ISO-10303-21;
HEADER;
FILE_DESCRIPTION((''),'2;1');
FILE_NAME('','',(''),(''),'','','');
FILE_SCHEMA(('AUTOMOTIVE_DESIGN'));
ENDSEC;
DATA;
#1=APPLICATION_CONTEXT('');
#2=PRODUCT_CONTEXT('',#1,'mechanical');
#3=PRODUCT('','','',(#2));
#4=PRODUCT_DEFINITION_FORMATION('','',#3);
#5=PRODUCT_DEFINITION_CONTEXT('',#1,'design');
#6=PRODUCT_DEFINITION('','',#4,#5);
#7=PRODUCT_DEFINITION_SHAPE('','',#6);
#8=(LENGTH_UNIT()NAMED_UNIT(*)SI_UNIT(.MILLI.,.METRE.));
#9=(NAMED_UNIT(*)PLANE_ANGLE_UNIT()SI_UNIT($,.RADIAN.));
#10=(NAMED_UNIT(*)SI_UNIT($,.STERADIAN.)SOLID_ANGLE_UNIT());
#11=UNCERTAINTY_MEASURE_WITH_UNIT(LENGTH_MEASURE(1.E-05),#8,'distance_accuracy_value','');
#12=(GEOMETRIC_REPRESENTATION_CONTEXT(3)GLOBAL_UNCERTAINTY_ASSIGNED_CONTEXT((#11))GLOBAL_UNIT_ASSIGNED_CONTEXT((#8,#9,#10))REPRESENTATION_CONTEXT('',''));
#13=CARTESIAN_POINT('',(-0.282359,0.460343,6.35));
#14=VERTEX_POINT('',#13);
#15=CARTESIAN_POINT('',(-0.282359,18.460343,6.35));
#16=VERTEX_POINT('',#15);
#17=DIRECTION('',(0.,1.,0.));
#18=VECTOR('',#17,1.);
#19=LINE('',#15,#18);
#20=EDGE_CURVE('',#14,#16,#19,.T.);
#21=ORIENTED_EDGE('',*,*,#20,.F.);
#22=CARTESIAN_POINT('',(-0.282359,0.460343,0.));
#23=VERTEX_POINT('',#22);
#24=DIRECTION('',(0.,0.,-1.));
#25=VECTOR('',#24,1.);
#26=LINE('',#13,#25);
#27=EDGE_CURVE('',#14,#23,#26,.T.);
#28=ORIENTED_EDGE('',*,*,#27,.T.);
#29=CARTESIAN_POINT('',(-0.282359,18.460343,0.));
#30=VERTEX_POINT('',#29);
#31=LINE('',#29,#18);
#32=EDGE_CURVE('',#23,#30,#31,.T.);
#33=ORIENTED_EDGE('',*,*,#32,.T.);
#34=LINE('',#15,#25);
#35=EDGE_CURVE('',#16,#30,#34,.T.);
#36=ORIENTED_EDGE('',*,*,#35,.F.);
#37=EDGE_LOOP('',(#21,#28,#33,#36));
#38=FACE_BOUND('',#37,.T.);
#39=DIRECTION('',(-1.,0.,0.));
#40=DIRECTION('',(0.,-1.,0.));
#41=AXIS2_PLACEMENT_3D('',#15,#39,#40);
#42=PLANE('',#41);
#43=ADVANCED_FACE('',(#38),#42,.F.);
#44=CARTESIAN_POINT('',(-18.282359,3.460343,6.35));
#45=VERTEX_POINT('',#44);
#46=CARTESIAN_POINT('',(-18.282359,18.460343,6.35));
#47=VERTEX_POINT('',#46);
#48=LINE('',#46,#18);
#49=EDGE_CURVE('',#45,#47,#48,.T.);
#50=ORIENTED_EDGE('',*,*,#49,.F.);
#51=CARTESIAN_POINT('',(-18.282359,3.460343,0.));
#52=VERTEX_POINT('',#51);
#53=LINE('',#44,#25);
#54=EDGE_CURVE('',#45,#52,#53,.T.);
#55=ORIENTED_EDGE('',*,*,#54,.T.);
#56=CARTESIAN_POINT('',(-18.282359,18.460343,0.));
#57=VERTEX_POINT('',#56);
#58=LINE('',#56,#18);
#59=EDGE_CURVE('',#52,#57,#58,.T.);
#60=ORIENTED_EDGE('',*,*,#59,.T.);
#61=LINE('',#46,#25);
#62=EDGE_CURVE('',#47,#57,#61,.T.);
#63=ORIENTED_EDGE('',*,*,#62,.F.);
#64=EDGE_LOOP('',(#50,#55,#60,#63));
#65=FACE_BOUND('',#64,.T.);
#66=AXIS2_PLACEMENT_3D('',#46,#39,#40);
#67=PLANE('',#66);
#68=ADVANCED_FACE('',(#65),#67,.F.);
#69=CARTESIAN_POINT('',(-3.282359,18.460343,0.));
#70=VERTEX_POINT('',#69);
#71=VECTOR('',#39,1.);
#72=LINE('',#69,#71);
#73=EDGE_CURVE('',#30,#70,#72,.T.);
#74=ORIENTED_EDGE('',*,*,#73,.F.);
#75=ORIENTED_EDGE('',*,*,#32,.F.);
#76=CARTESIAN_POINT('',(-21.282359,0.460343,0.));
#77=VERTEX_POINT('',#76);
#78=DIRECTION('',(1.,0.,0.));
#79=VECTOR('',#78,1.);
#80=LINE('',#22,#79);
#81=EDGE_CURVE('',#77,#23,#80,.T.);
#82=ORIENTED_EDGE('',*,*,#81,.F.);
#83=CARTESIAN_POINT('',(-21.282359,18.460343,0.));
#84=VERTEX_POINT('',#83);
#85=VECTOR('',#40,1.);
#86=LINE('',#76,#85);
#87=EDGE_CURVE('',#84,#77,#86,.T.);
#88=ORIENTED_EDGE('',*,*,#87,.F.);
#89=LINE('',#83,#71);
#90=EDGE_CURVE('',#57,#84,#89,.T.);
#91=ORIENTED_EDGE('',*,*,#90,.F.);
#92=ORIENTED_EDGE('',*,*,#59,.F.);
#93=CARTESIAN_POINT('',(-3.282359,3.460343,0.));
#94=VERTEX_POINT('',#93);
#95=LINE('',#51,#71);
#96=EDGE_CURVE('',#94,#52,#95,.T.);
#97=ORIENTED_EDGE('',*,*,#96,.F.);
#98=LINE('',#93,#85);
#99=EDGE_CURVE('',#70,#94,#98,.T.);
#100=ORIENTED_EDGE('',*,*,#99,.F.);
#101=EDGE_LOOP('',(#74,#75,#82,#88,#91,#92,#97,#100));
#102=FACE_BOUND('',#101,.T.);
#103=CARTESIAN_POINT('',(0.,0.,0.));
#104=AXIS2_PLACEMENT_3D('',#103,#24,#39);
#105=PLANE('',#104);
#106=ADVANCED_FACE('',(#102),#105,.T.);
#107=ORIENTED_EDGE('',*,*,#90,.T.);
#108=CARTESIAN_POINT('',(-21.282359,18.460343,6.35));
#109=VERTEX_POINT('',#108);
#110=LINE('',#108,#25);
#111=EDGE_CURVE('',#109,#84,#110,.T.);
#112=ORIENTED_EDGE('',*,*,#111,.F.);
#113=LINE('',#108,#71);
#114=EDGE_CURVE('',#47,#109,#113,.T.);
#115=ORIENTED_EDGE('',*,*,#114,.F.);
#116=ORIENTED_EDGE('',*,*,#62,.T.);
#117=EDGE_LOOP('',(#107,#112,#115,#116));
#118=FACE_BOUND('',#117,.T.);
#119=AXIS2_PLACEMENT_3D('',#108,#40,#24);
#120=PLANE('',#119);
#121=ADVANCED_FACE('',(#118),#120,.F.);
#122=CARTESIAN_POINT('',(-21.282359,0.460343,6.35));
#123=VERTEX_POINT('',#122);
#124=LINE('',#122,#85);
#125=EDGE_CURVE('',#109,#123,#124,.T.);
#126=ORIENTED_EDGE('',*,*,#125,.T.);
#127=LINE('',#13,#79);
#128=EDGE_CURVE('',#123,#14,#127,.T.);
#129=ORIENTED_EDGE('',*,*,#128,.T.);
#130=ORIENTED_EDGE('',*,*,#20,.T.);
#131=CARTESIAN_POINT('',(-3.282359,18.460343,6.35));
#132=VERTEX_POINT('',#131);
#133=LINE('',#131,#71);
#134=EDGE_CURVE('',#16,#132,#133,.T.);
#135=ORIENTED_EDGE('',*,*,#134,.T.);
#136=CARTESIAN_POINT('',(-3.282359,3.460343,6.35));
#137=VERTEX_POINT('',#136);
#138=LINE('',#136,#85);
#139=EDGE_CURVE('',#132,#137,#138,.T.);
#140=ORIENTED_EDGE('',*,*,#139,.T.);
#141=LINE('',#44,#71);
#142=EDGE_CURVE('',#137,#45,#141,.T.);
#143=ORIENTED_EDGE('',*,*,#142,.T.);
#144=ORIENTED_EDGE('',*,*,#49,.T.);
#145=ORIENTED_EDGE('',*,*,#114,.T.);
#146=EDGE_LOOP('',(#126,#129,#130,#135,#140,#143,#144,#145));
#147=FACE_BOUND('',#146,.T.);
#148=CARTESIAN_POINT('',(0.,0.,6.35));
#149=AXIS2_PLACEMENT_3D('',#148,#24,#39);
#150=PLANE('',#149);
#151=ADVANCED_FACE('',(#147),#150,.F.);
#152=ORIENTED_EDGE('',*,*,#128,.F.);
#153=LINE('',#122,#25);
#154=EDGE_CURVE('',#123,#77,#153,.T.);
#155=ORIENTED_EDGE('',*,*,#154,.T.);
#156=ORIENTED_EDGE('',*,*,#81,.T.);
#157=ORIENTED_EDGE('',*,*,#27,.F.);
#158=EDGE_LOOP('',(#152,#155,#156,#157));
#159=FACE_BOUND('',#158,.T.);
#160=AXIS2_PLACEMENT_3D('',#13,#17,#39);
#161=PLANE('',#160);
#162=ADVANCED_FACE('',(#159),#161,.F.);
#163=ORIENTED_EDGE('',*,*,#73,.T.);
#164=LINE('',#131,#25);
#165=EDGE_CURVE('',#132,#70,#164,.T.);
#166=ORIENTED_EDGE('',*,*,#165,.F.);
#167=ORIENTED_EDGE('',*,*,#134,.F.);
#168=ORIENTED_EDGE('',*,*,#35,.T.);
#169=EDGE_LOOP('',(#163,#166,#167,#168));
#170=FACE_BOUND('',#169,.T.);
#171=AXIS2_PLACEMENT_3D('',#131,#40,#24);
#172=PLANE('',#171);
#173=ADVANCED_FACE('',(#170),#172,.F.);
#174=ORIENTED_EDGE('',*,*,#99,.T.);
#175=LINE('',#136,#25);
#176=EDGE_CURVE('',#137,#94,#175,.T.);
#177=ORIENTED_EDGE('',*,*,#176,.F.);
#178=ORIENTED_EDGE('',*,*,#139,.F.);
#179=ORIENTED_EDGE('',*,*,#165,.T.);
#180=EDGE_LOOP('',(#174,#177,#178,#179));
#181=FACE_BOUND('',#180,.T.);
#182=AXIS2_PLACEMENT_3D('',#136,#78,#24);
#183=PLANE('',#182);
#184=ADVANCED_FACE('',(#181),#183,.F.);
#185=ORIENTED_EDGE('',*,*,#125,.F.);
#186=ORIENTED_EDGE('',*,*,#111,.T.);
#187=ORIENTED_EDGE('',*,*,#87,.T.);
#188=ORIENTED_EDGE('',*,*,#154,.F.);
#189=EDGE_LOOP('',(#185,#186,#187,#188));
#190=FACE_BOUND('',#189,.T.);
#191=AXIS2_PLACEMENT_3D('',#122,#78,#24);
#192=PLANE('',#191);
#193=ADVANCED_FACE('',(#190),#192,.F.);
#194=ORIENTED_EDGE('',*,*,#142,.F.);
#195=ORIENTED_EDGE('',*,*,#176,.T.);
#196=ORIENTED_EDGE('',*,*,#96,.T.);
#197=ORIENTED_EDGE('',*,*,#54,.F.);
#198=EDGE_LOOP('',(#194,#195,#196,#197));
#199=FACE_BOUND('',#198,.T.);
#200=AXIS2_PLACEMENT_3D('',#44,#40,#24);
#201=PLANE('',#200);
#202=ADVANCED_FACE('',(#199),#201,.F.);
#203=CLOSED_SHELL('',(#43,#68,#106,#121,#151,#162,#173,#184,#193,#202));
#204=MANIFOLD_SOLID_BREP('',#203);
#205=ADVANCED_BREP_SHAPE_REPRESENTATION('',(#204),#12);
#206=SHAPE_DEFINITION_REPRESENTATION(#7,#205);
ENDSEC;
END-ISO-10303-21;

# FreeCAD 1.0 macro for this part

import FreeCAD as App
import Part
import Sketcher

V = App.Vector
Q = App.Units.Quantity


def add_polygon(sketch, points):
    """Adds a closed chain of lines whose ends are joined by coincident constraints."""
    first, n = sketch.GeometryCount, len(points)
    for a, b in zip(points, points[1:] + points[:1]):
        sketch.addGeometry(Part.LineSegment(App.Vector(*a, 0), App.Vector(*b, 0)), False)
    for i in range(n):
        sketch.addConstraint(Sketcher.Constraint("Coincident", first + i, 2, first + (i + 1) % n, 1))

doc = App.newDocument("Part")
body = doc.addObject("PartDesign::Body", "Body")

# Sketch on XY plane
sketch1 = body.newObject("Sketcher::SketchObject", "Sketch")
sketch1.AttachmentSupport = (doc.getObject("XY_Plane"), [""])
sketch1.MapMode = "FlatFace"
add_polygon(sketch1, [(-18.3, 3.5), (-18.3, 18.5), (-21.3, 18.5), (-21.3, 0.5), (-0.3, 0.5), (-0.3, 18.5), (-3.3, 18.5), (-3.3, 3.5)])  # lines 0-7
sketch1.addConstraint([
    Sketcher.Constraint("Vertical", 0),
    Sketcher.Constraint("Horizontal", 1),
    Sketcher.Constraint("Vertical", 2),
    Sketcher.Constraint("Horizontal", 3),
    Sketcher.Constraint("Vertical", 4),
    Sketcher.Constraint("Horizontal", 5),
    Sketcher.Constraint("Vertical", 6),
    Sketcher.Constraint("Horizontal", 7),
    Sketcher.Constraint("Horizontal", 1, 2, 4, 2),
    Sketcher.Constraint("Equal", 1, 5),
    Sketcher.Constraint("Equal", 7, 0),
    Sketcher.Constraint("DistanceX", 1, 2, 1, 1, Q("3 mm")),
    Sketcher.Constraint("DistanceX", 3, 1, 3, 2, Q("21 mm")),
    Sketcher.Constraint("DistanceY", 2, 2, 2, 1, Q("18 mm")),
    Sketcher.Constraint("DistanceX", 0, 2, -1, 1, Q("18.282359 mm")),
    Sketcher.Constraint("DistanceY", -1, 1, 0, 2, Q("18.460343 mm")),
])
pad1 = body.newObject("PartDesign::Pad", "Pad")
pad1.Profile = sketch1
pad1.Length = 6.35

doc.recompute()
